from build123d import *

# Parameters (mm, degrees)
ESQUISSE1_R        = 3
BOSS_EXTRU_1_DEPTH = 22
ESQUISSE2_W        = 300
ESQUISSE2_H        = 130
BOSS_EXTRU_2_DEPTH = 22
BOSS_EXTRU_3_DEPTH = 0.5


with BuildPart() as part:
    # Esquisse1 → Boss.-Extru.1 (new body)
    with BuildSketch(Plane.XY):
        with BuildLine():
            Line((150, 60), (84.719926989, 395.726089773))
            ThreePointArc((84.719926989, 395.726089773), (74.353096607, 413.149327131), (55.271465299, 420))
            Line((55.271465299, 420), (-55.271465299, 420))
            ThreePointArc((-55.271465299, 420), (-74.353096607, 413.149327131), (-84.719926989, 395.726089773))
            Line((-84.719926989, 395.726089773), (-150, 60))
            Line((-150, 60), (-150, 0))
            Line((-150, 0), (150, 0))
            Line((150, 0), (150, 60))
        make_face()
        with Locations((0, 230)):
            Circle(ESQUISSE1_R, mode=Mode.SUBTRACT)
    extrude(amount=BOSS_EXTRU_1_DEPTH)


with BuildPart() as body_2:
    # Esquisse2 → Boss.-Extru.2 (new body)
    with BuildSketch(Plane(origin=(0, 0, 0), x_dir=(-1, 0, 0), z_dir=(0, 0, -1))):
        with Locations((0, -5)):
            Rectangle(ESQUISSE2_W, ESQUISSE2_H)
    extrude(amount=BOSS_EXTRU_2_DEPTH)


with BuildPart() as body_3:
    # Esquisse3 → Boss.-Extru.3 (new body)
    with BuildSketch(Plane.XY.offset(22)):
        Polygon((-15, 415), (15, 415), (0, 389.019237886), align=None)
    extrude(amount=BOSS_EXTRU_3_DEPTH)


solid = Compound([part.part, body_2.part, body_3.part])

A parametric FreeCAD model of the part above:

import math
import FreeCAD as App
import Part
import Sketcher

V = App.Vector
Q = App.Units.Quantity

doc = App.newDocument("Part")
body = doc.addObject("PartDesign::Body", "Body")

sketch1 = body.newObject("Sketcher::SketchObject", "Sketch")
sketch1.AttachmentSupport = (doc.getObject("XY_Plane"), [""])
sketch1.MapMode = "FlatFace"
sketch1.addGeometry(Part.LineSegment(V(150, 60, 0), V(84.7, 395.7, 0)), False)
sketch1.addGeometry(Part.ArcOfCircle(Part.Circle(V(55.3, 390, 0), V(0, 0, 1), 30), math.radians(11), math.radians(90)), False)
sketch1.addGeometry(Part.LineSegment(V(55.3, 420, 0), V(-55.3, 420, 0)), False)
sketch1.addGeometry(Part.ArcOfCircle(Part.Circle(V(-55.3, 390, 0), V(0, 0, 1), 30), math.radians(90), math.radians(169)), False)
sketch1.addGeometry(Part.LineSegment(V(-84.7, 395.7, 0), V(-150, 60, 0)), False)
sketch1.addGeometry(Part.LineSegment(V(-150, 60, 0), V(-150, 0, 0)), False)
sketch1.addGeometry(Part.LineSegment(V(-150, 0, 0), V(150, 0, 0)), False)
sketch1.addGeometry(Part.LineSegment(V(150, 0, 0), V(150, 60, 0)), False)
sketch1.addGeometry(Part.Circle(V(0, 230, 0), V(0, 0, 1), 3), False)
sketch1.addConstraint(Sketcher.Constraint("Tangent", 0, 2, 1, 1))
sketch1.addConstraint(Sketcher.Constraint("Tangent", 1, 2, 2, 1))
sketch1.addConstraint(Sketcher.Constraint("Tangent", 2, 2, 3, 1))
sketch1.addConstraint(Sketcher.Constraint("Tangent", 3, 2, 4, 1))
sketch1.addConstraint(Sketcher.Constraint("Coincident", 4, 2, 5, 1))
sketch1.addConstraint(Sketcher.Constraint("Coincident", 5, 2, 6, 1))
sketch1.addConstraint(Sketcher.Constraint("Coincident", 6, 2, 7, 1))
sketch1.addConstraint(Sketcher.Constraint("Coincident", 7, 2, 0, 1))
sketch1.addConstraint(Sketcher.Constraint("Horizontal", 2))
sketch1.addConstraint(Sketcher.Constraint("Vertical", 5))
sketch1.addConstraint(Sketcher.Constraint("Horizontal", 6))
sketch1.addConstraint(Sketcher.Constraint("Vertical", 7))
sketch1.addConstraint(Sketcher.Constraint("Equal", 1, 3))
sketch1.addConstraint(Sketcher.Constraint("Symmetric", 5, 2, 6, 2, -1, 1))
sketch1.addConstraint(Sketcher.Constraint("PointOnObject", 8, 3, -2))
sketch1.addConstraint(Sketcher.Constraint("Horizontal", 0, 2, 3, 2))
sketch1.addConstraint(Sketcher.Constraint("Horizontal", 4, 2, 7, 2))
sketch1.addConstraint(Sketcher.Constraint("Diameter", 8, 6.0))
sketch1.addConstraint(Sketcher.Constraint("Radius", 1, 30.0))
sketch1.addConstraint(Sketcher.Constraint("DistanceX", 6, 1, 6, 2, 300.0))
sketch1.addConstraint(Sketcher.Constraint("DistanceY", 5, 2, 5, 1, 60.0))
sketch1.addConstraint(Sketcher.Constraint("DistanceY", -1, 1, 1, 3, 390.0))
sketch1.addConstraint(Sketcher.Constraint("DistanceY", -1, 1, 8, 3, 230.0))
sketch1.addConstraint(Sketcher.Constraint("DistanceX", 2, 2, 2, 1, 110.542931))
pad1 = body.newObject("PartDesign::Pad", "Pad")
pad1.Profile = sketch1
pad1.Length = 22
body2 = doc.addObject("PartDesign::Body", "Body001")

sketch2 = body2.newObject("Sketcher::SketchObject", "Sketch001")
sketch2.AttachmentSupport = (doc.getObject("XY_Plane001"), [""])
sketch2.MapMode = "FlatFace"
sketch2.addGeometry(Part.LineSegment(V(150, 60, 0), V(150, -70, 0)), False)
sketch2.addGeometry(Part.LineSegment(V(150, -70, 0), V(-150, -70, 0)), False)
sketch2.addGeometry(Part.LineSegment(V(-150, -70, 0), V(-150, 60, 0)), False)
sketch2.addGeometry(Part.LineSegment(V(-150, 60, 0), V(150, 60, 0)), False)
sketch2.addConstraint(Sketcher.Constraint("Coincident", 0, 2, 1, 1))
sketch2.addConstraint(Sketcher.Constraint("Coincident", 1, 2, 2, 1))
sketch2.addConstraint(Sketcher.Constraint("Coincident", 2, 2, 3, 1))
sketch2.addConstraint(Sketcher.Constraint("Coincident", 3, 2, 0, 1))
sketch2.addConstraint(Sketcher.Constraint("Vertical", 0))
sketch2.addConstraint(Sketcher.Constraint("Horizontal", 1))
sketch2.addConstraint(Sketcher.Constraint("Vertical", 2))
sketch2.addConstraint(Sketcher.Constraint("Horizontal", 3))
sketch2.addConstraint(Sketcher.Constraint("DistanceX", 1, 2, 1, 1, 300.0))
sketch2.addConstraint(Sketcher.Constraint("DistanceY", 0, 2, 0, 1, 130.0))
sketch2.addConstraint(Sketcher.Constraint("DistanceX", -1, 1, 0, 2, 150.0))
sketch2.addConstraint(Sketcher.Constraint("DistanceY", 0, 2, -1, 1, 70.0))
pad2 = body2.newObject("PartDesign::Pad", "Pad001")
pad2.Profile = sketch2
pad2.Length = 22
pad2.Reversed = True
body3 = doc.addObject("PartDesign::Body", "Body002")

sketch3 = body3.newObject("Sketcher::SketchObject", "Sketch002")
sketch3.AttachmentSupport = (doc.getObject("XY_Plane002"), [""])
sketch3.MapMode = "FlatFace"
sketch3.AttachmentOffset = App.Placement(V(0, 0, 22), App.Rotation())
sketch3.addGeometry(Part.LineSegment(V(15, 415, 0), V(-15, 415, 0)), False)
sketch3.addGeometry(Part.LineSegment(V(-15, 415, 0), V(0, 389, 0)), False)
sketch3.addGeometry(Part.LineSegment(V(0, 389, 0), V(15, 415, 0)), False)
sketch3.addConstraint(Sketcher.Constraint("Coincident", 0, 2, 1, 1))
sketch3.addConstraint(Sketcher.Constraint("Coincident", 1, 2, 2, 1))
sketch3.addConstraint(Sketcher.Constraint("Coincident", 2, 2, 0, 1))
sketch3.addConstraint(Sketcher.Constraint("Horizontal", 0))
sketch3.addConstraint(Sketcher.Constraint("PointOnObject", 1, 2, -2))
sketch3.addConstraint(Sketcher.Constraint("Equal", 1, 2))
sketch3.addConstraint(Sketcher.Constraint("DistanceX", 0, 2, 0, 1, 30.0))
sketch3.addConstraint(Sketcher.Constraint("Angle", 1, Q("-60 deg")))
sketch3.addConstraint(Sketcher.Constraint("DistanceY", -1, 1, 0, 2, 415.0))
pad3 = body3.newObject("PartDesign::Pad", "Pad002")
pad3.Profile = sketch3
pad3.Length = 0.5

doc.recompute()
